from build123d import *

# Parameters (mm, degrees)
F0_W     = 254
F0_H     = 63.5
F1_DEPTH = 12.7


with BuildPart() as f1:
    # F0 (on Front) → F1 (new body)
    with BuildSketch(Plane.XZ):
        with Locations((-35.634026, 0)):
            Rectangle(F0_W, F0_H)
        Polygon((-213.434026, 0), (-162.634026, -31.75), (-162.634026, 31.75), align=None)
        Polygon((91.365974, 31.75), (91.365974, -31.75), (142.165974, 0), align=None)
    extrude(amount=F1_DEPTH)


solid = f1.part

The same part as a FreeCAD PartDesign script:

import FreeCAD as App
import Part
import Sketcher

V = App.Vector
Q = App.Units.Quantity


def add_polygon(sketch, points):
    """Adds a closed chain of lines whose ends are joined by coincident constraints."""
    first, n = sketch.GeometryCount, len(points)
    for a, b in zip(points, points[1:] + points[:1]):
        sketch.addGeometry(Part.LineSegment(App.Vector(*a, 0), App.Vector(*b, 0)), False)
    for i in range(n):
        sketch.addConstraint(Sketcher.Constraint("Coincident", first + i, 2, first + (i + 1) % n, 1))

doc = App.newDocument("Part")
body = doc.addObject("PartDesign::Body", "Body")

# Sketch on XZ plane
sketch1 = body.newObject("Sketcher::SketchObject", "Sketch")
sketch1.AttachmentSupport = (doc.getObject("XZ_Plane"), [""])
sketch1.MapMode = "FlatFace"
add_polygon(sketch1, [(-163, -32), (91, -32), (142, 0), (91, 32), (-163, 32), (-213, 0)])  # lines 0-5
sketch1.addConstraint(Sketcher.Constraint("Horizontal", 0))
sketch1.addConstraint(Sketcher.Constraint("Horizontal", 3))
sketch1.addConstraint(Sketcher.Constraint("Symmetric", 0, 2, 2, 2, -1))
sketch1.addConstraint(Sketcher.Constraint("PointOnObject", 1, 2, -1))
sketch1.addConstraint(Sketcher.Constraint("PointOnObject", 4, 2, -1))
sketch1.addConstraint(Sketcher.Constraint("Parallel", 1, 4))
sketch1.addConstraint(Sketcher.Constraint("Parallel", 2, 5))
sketch1.addConstraint(Sketcher.Constraint("DistanceX", 0, 1, 0, 2, Q("10 in")))
sketch1.addConstraint(Sketcher.Constraint("DistanceX", 0, 2, 1, 2, Q("2 in")))
sketch1.addConstraint(Sketcher.Constraint("DistanceY", 0, 2, 2, 2, Q("2.5 in")))
sketch1.addConstraint(Sketcher.Constraint("DistanceX", -1, 1, 0, 2, 91.365974))
pad1 = body.newObject("PartDesign::Pad", "Pad")
pad1.Profile = sketch1
pad1.Length = Q("0.5 in")

doc.recompute()
